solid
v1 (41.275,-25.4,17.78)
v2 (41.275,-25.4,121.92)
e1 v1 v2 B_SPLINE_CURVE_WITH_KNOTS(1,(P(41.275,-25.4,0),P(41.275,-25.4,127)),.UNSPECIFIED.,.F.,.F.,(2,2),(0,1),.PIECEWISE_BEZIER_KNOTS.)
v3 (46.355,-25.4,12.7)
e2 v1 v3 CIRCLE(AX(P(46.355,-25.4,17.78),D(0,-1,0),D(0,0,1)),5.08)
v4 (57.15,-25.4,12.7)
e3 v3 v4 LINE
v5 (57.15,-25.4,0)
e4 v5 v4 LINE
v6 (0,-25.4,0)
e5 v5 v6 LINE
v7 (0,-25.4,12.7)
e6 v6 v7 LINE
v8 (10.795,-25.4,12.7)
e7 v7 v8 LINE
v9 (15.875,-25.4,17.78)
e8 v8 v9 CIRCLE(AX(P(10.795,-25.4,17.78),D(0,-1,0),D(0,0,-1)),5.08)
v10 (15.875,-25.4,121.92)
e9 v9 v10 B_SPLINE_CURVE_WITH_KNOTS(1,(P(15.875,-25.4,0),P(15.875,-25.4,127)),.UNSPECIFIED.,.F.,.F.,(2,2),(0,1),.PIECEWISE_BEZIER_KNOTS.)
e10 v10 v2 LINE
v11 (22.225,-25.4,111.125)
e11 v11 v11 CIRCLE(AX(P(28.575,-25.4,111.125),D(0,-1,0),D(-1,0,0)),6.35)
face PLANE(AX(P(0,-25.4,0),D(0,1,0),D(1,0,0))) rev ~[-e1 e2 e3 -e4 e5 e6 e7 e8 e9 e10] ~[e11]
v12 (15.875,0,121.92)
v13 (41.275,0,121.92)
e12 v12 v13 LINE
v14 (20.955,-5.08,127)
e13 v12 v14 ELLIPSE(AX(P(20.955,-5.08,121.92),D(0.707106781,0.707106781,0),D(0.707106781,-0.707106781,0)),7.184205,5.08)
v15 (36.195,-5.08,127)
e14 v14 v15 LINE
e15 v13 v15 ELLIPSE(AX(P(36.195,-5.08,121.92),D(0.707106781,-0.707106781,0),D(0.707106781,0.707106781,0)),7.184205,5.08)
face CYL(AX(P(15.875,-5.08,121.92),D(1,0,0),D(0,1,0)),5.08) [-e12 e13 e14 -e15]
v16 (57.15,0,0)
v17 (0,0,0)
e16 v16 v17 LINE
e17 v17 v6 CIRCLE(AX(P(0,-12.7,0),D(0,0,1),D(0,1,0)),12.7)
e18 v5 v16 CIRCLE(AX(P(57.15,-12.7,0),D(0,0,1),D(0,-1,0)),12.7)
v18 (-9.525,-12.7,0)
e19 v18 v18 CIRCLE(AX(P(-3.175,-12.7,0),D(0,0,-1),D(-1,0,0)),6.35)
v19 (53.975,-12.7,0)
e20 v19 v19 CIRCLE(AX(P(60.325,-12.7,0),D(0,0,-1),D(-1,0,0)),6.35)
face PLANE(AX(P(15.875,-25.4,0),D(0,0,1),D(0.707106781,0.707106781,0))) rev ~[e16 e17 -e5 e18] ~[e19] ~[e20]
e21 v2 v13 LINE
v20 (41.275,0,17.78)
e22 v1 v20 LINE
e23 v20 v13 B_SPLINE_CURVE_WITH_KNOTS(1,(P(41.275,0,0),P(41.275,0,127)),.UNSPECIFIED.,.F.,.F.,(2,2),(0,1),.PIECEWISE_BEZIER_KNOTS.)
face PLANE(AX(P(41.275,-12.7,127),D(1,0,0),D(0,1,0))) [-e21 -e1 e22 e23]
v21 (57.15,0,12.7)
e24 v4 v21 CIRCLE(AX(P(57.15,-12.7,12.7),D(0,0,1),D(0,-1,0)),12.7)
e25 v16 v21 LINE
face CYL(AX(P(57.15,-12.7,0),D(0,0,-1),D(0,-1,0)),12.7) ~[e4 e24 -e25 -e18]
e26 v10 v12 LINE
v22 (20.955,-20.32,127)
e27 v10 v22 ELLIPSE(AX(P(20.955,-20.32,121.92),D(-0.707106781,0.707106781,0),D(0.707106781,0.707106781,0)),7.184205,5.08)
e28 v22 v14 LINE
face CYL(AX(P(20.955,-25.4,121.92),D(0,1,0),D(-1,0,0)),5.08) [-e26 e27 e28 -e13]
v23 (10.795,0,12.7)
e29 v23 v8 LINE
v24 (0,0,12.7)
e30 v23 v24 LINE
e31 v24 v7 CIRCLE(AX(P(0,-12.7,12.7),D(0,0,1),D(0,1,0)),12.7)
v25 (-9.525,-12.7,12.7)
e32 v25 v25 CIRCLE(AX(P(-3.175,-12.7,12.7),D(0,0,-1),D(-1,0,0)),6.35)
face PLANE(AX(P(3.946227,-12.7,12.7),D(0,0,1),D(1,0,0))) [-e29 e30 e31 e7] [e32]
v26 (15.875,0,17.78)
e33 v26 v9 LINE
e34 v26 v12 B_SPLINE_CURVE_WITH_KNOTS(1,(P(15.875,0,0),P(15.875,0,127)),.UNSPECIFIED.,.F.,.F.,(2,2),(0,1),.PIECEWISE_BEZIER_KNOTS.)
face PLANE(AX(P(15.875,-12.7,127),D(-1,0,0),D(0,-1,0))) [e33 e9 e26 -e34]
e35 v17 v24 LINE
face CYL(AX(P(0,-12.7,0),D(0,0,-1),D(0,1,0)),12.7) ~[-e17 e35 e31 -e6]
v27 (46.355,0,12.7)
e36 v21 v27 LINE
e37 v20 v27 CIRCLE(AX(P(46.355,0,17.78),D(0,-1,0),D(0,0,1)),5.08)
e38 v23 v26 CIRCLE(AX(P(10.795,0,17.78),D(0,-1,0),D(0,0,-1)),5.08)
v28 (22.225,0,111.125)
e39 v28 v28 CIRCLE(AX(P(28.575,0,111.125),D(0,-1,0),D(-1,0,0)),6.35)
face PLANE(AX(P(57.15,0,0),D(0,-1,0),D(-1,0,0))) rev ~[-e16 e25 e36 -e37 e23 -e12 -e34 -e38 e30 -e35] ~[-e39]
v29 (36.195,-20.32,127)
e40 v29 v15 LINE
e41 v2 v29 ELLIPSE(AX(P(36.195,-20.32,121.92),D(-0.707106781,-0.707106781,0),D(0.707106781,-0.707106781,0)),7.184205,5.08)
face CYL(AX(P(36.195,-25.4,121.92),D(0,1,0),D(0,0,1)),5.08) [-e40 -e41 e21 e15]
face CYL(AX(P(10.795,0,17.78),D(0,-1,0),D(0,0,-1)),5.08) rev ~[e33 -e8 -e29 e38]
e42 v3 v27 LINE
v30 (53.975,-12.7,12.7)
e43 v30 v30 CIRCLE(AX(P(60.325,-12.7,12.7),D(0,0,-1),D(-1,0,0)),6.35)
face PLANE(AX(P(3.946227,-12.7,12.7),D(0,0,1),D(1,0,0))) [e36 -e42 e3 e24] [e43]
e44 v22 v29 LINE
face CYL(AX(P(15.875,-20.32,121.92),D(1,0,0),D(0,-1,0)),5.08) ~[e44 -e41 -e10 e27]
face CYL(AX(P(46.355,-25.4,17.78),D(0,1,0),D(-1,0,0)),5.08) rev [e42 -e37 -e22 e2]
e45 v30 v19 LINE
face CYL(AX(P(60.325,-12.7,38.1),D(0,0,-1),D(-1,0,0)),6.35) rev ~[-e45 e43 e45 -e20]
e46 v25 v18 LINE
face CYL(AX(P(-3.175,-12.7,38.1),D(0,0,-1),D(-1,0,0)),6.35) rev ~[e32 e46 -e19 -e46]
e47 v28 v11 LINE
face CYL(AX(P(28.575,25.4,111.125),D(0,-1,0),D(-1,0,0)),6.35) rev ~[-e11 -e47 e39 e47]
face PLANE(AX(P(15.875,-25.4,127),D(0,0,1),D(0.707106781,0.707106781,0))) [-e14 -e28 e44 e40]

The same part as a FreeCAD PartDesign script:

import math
import FreeCAD as App
import Part
import Sketcher
from FreeCAD import Vector
Q = App.Units.Quantity


def edges_at(feature, points):
    """Names of the edges that pass closest to the given points."""
    edges = feature.Shape.Edges
    near = lambda p: min(range(len(edges)), key=lambda i: edges[i].distToShape(Part.Vertex(*p))[0])
    return sorted({f"Edge{near(p) + 1}" for p in points})


def add_polygon(sketch, points):
    """Adds a closed chain of lines whose ends are joined by coincident constraints."""
    first, n = sketch.GeometryCount, len(points)
    for a, b in zip(points, points[1:] + points[:1]):
        sketch.addGeometry(Part.LineSegment(App.Vector(*a, 0), App.Vector(*b, 0)), False)
    for i in range(n):
        sketch.addConstraint(Sketcher.Constraint("Coincident", first + i, 2, first + (i + 1) % n, 1))

doc = App.newDocument("Part")
body = doc.addObject("PartDesign::Body", "Body")

sketch1 = body.newObject("Sketcher::SketchObject", "Sketch")
sketch1.AttachmentSupport = (doc.getObject("XY_Plane"), [""])
sketch1.MapMode = "FlatFace"
sketch1.addGeometry([
    Part.ArcOfCircle(Part.Circle(Vector(0, -13, 0), Vector(0, 0, 1), 13), math.radians(90), math.radians(270)),
    Part.LineSegment(Vector(0, -25, 0), Vector(57, -25, 0)),
    Part.ArcOfCircle(Part.Circle(Vector(57, -13, 0), Vector(0, 0, 1), 13), math.radians(-90), math.radians(90)),
    Part.LineSegment(Vector(57, 0, 0), Vector(0, 0, 0)),
], False)
sketch1.addConstraint([
    Sketcher.Constraint("Tangent", 0, 2, 1, 1),
    Sketcher.Constraint("Tangent", 1, 2, 2, 1),
    Sketcher.Constraint("Tangent", 2, 2, 3, 1),
    Sketcher.Constraint("Tangent", 3, 2, 0, 1),
    Sketcher.Constraint("Horizontal", 1),
    Sketcher.Constraint("Horizontal", 3),
    Sketcher.Constraint("Coincident", 3, 2, -1, 1),
    Sketcher.Constraint("Radius", 0, Q("0.5 in")),
    Sketcher.Constraint("DistanceX", 1, 1, 1, 2, Q("2.25 in")),
])
pad1 = body.newObject("PartDesign::Pad", "Pad")
pad1.Profile = sketch1
pad1.Length = Q("0.5 in")

sketch2 = body.newObject("Sketcher::SketchObject", "Sketch001")
sketch2.AttachmentSupport = (doc.getObject("XY_Plane"), [""])
sketch2.MapMode = "FlatFace"
add_polygon(sketch2, [(16, 0), (16, -25), (41, -25), (41, 0)])
sketch2.addConstraint([
    Sketcher.Constraint("Vertical", 0),
    Sketcher.Constraint("Horizontal", 1),
    Sketcher.Constraint("Vertical", 2),
    Sketcher.Constraint("Horizontal", 3),
    Sketcher.Constraint("PointOnObject", 2, 2, -1),
    Sketcher.Constraint("Equal", 3, 0),
    Sketcher.Constraint("DistanceX", 1, 1, 1, 2, Q("1 in")),
    Sketcher.Constraint("DistanceX", -1, 1, 0, 2, Q("0.625 in")),
])

sketch3 = body.newObject("Sketcher::SketchObject", "Sketch002")
sketch3.AttachmentSupport = (doc.getObject("XY_Plane"), [""])
sketch3.MapMode = "FlatFace"
sketch3.AttachmentOffset = App.Placement(Vector(0, 0, 5 * 25.4), App.Rotation())
add_polygon(sketch3, [(16, 0), (16, -25), (41, -25), (41, 0)])
sketch3.addConstraint([
    Sketcher.Constraint("Vertical", 0),
    Sketcher.Constraint("Horizontal", 1),
    Sketcher.Constraint("Vertical", 2),
    Sketcher.Constraint("Horizontal", 3),
    Sketcher.Constraint("PointOnObject", 2, 2, -1),
    Sketcher.Constraint("Equal", 3, 0),
    Sketcher.Constraint("DistanceX", 1, 1, 1, 2, Q("1 in")),
    Sketcher.Constraint("DistanceX", -1, 1, 0, 2, Q("0.625 in")),
])

additiveloft = body.newObject("PartDesign::AdditiveLoft", "AdditiveLoft")
additiveloft.Profile = sketch2
additiveloft.Sections = [sketch3]
doc.recompute()

fillet = body.newObject("PartDesign::Fillet", "Fillet")
fillet.Base = (additiveloft, edges_at(additiveloft, [
    (41.275, -12.7, 12.7),
    (15.875, -12.7, 12.7),
    (28.575, 0, 127),
    (15.875, -12.7, 127),
    (28.575, -25.4, 127),
    (41.275, -12.7, 127),
]))
fillet.Radius = Q("0.2 in")

sketch4 = body.newObject("Sketcher::SketchObject", "Sketch003")
sketch4.AttachmentSupport = (doc.getObject("XZ_Plane"), [""])
sketch4.MapMode = "FlatFace"
sketch4.addGeometry(Part.Circle(Vector(29, 111, 0), Vector(0, 0, 1), 6), False)
sketch4.addConstraint([
    Sketcher.Constraint("Diameter", 0, Q("0.5 in")),
    Sketcher.Constraint("DistanceX", -1, 1, 0, 3, Q("1.125 in")),
    Sketcher.Constraint("DistanceY", -1, 1, 0, 3, Q("4.375 in")),
])
doc.recompute()
hole = body.newObject("PartDesign::Hole", "Hole")
hole.Profile = sketch4
hole.ThreadType = "None"
hole.Diameter = Q("0.5 in")
hole.DepthType = "Dimension"
hole.Depth = Q("1 in")
hole.DrillPoint = "Angled"
hole.DrillPointAngle = 118
hole.Reversed = True

sketch5 = body.newObject("Sketcher::SketchObject", "Sketch004")
sketch5.AttachmentSupport = (doc.getObject("XY_Plane"), [""])
sketch5.MapMode = "FlatFace"
sketch5.AttachmentOffset = App.Placement(Vector(0, 0, 0.5 * 25.4), App.Rotation())
sketch5.addGeometry([
    Part.Circle(Vector(-3, -13, 0), Vector(0, 0, 1), 6),
    Part.Circle(Vector(60, -13, 0), Vector(0, 0, 1), 6),
], False)
sketch5.addConstraint([
    Sketcher.Constraint("Equal", 0, 1),
    Sketcher.Constraint("Horizontal", 0, 3, 1, 3),
    Sketcher.Constraint("Diameter", 0, Q("0.5 in")),
    Sketcher.Constraint("DistanceY", 0, 3, -1, 1, Q("0.5 in")),
    Sketcher.Constraint("DistanceX", 0, 3, 1, 3, Q("2.5 in")),
    Sketcher.Constraint("DistanceX", 0, 3, -1, 1, Q("0.125 in")),
])
doc.recompute()
hole2 = body.newObject("PartDesign::Hole", "Hole001")
hole2.Profile = sketch5
hole2.ThreadType = "None"
hole2.Diameter = Q("0.5 in")
hole2.DepthType = "Dimension"
hole2.Depth = Q("1 in")
hole2.DrillPoint = "Angled"
hole2.DrillPointAngle = 118

doc.recompute()
